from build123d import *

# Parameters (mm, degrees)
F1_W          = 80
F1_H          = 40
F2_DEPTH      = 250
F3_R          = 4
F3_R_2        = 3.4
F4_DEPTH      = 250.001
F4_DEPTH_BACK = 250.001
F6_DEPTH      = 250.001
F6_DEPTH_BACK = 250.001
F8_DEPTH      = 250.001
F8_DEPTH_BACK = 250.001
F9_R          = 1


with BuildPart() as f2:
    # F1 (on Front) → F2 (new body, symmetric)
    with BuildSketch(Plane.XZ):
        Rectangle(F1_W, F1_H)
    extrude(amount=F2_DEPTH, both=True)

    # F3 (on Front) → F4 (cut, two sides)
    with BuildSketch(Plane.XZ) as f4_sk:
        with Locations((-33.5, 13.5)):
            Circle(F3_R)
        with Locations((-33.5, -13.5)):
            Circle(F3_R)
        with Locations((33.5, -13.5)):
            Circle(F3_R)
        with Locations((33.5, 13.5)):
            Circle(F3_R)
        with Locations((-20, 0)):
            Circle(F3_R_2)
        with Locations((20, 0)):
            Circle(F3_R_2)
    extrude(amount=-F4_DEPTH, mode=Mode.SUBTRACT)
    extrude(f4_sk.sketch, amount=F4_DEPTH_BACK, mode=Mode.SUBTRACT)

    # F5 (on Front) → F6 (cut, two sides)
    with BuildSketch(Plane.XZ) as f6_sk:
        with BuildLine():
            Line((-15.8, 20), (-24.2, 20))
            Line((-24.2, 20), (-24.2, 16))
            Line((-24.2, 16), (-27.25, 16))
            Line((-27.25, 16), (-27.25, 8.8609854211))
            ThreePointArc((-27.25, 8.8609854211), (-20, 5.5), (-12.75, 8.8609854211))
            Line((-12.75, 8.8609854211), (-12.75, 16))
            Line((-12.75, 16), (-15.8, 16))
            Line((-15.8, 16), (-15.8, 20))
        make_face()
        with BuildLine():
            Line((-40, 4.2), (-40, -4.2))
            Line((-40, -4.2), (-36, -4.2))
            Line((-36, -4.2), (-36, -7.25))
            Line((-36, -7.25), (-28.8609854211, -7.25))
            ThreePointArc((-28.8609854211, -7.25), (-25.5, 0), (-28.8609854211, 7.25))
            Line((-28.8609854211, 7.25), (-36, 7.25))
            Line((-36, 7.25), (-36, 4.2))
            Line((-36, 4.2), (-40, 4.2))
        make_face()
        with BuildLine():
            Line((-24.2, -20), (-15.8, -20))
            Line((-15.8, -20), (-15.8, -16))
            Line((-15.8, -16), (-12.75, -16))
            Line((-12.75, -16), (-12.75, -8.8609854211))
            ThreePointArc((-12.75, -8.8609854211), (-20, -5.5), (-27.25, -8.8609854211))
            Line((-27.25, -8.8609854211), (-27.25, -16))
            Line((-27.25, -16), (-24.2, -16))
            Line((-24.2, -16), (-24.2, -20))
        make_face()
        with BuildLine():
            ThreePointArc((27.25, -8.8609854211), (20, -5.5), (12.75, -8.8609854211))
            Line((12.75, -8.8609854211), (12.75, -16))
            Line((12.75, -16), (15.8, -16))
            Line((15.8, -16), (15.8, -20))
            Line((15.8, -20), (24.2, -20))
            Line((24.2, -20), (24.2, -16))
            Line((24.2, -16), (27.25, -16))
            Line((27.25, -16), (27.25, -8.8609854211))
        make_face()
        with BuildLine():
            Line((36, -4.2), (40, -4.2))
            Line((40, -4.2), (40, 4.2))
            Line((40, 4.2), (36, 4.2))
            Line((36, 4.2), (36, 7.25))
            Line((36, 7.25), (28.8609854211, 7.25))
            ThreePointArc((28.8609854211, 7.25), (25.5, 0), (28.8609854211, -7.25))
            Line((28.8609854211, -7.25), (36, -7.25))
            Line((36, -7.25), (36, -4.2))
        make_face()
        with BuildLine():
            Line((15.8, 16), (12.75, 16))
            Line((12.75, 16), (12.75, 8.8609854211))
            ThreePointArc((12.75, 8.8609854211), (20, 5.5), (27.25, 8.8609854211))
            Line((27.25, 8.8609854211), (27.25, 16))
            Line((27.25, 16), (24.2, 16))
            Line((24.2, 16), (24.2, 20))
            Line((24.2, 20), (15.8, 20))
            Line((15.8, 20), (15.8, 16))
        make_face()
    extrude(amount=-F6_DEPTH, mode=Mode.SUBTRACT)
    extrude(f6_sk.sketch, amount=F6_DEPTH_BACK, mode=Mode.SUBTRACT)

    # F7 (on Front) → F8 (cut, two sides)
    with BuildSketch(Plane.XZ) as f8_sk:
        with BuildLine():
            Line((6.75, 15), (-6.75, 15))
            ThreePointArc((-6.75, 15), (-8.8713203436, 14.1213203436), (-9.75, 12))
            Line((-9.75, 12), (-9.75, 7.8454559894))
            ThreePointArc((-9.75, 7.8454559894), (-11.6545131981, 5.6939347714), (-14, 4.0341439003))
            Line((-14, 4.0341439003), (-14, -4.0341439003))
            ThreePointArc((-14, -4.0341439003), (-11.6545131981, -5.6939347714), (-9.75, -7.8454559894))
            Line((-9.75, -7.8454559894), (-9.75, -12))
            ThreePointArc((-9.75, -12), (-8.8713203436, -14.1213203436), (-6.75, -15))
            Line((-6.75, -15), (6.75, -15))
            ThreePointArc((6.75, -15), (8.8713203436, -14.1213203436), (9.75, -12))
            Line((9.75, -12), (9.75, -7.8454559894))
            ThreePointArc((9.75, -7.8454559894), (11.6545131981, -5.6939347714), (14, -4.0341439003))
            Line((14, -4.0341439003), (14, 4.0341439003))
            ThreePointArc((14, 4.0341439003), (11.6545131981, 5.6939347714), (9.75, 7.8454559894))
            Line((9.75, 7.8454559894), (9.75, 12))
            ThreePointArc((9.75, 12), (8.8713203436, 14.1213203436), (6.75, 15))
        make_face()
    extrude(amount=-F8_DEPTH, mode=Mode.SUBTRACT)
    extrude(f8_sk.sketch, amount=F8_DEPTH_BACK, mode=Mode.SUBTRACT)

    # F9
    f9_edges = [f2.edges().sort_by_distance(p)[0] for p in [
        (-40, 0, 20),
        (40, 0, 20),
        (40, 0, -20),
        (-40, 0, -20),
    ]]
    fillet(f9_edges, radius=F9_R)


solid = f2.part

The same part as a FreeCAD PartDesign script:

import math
import FreeCAD as App
import Part
import Sketcher
from FreeCAD import Vector
Q = App.Units.Quantity


def edges_at(feature, points):
    """Names of the edges that pass closest to the given points."""
    edges = feature.Shape.Edges
    near = lambda p: min(range(len(edges)), key=lambda i: edges[i].distToShape(Part.Vertex(*p))[0])
    return sorted({f"Edge{near(p) + 1}" for p in points})


def add_polygon(sketch, points):
    """Adds a closed chain of lines whose ends are joined by coincident constraints."""
    first, n = sketch.GeometryCount, len(points)
    for a, b in zip(points, points[1:] + points[:1]):
        sketch.addGeometry(Part.LineSegment(App.Vector(*a, 0), App.Vector(*b, 0)), False)
    for i in range(n):
        sketch.addConstraint(Sketcher.Constraint("Coincident", first + i, 2, first + (i + 1) % n, 1))

doc = App.newDocument("Part")
body = doc.addObject("PartDesign::Body", "Body")

sketch1 = doc.addObject("Sketcher::SketchObject", "Sketch")
body.addObject(sketch1)
sketch1.AttachmentSupport = (doc.XZ_Plane, [""])
sketch1.MapMode = "FlatFace"
add_polygon(sketch1, [(-40, 20), (-40, -20), (40, -20), (40, 20)])
sketch1.addConstraint([
    Sketcher.Constraint("Vertical", 0),
    Sketcher.Constraint("Horizontal", 1),
    Sketcher.Constraint("Vertical", 2),
    Sketcher.Constraint("Horizontal", 3),
    Sketcher.Constraint("Symmetric", 0, 2, 2, 2, -1, 1),
    Sketcher.Constraint("DistanceX", 1, 1, 1, 2, Q("80 mm")),
    Sketcher.Constraint("DistanceY", 0, 2, 0, 1, Q("40 mm")),
])
pad1 = doc.addObject("PartDesign::Pad", "Pad")
body.addObject(pad1)
pad1.Profile = sketch1
pad1.Length = 500
pad1.Midplane = True

sketch2 = doc.addObject("Sketcher::SketchObject", "Sketch001")
body.addObject(sketch2)
sketch2.AttachmentSupport = (doc.XZ_Plane, [""])
sketch2.MapMode = "FlatFace"
sketch2.addGeometry([
    Part.Circle(Vector(-33.5, 13.5, 0), Vector(0, 0, 1), 4),
    Part.Circle(Vector(-33.5, -13.5, 0), Vector(0, 0, 1), 4),
    Part.Circle(Vector(33.5, -13.5, 0), Vector(0, 0, 1), 4),
    Part.Circle(Vector(33.5, 13.5, 0), Vector(0, 0, 1), 4),
    Part.Circle(Vector(-20, 0, 0), Vector(0, 0, 1), 3.4),
    Part.Circle(Vector(20, 0, 0), Vector(0, 0, 1), 3.4),
], False)
sketch2.addConstraint([
    Sketcher.Constraint("Equal", 0, 1),
    Sketcher.Constraint("Equal", 1, 2),
    Sketcher.Constraint("Equal", 2, 3),
    Sketcher.Constraint("Equal", 4, 5),
    Sketcher.Constraint("Symmetric", 0, 3, 2, 3, -1, 1),
    Sketcher.Constraint("Symmetric", 1, 3, 3, 3, -1, 1),
    Sketcher.Constraint("Symmetric", 4, 3, 5, 3, -1, 1),
    Sketcher.Constraint("Symmetric", 1, 3, 2, 3, -2),
    Sketcher.Constraint("PointOnObject", 4, 3, -1),
    Sketcher.Constraint("Diameter", 0, Q("8 mm")),
    Sketcher.Constraint("Diameter", 4, Q("6.8 mm")),
    Sketcher.Constraint("DistanceX", 4, 3, -1, 1, Q("20 mm")),
    Sketcher.Constraint("DistanceY", 1, 3, 0, 3, Q("27 mm")),
    Sketcher.Constraint("DistanceX", 1, 3, 2, 3, Q("67 mm")),
])
pocket1 = doc.addObject("PartDesign::Pocket", "Pocket")
body.addObject(pocket1)
pocket1.Profile = sketch2
pocket1.Type = "ThroughAll"
pocket1.Midplane = True

sketch3 = doc.addObject("Sketcher::SketchObject", "Sketch002")
body.addObject(sketch3)
sketch3.AttachmentSupport = (doc.XZ_Plane, [""])
sketch3.MapMode = "FlatFace"
sketch3.addGeometry([
    Part.LineSegment(Vector(-15.8, 20, 0), Vector(-24.2, 20, 0)),
    Part.LineSegment(Vector(-24.2, 20, 0), Vector(-24.2, 16, 0)),
    Part.LineSegment(Vector(-24.2, 16, 0), Vector(-27.2, 16, 0)),
    Part.LineSegment(Vector(-27.2, 16, 0), Vector(-27.2, 8.9, 0)),
    Part.ArcOfCircle(Part.Circle(Vector(-20, 15, 0), Vector(0, 0, 1), 9.5), math.radians(-140), math.radians(-40)),
    Part.LineSegment(Vector(-12.8, 8.9, 0), Vector(-12.8, 16, 0)),
    Part.LineSegment(Vector(-12.8, 16, 0), Vector(-15.8, 16, 0)),
    Part.LineSegment(Vector(-15.8, 16, 0), Vector(-15.8, 20, 0)),
    Part.LineSegment(Vector(-40, 4.2, 0), Vector(-40, -4.2, 0)),
    Part.LineSegment(Vector(-40, -4.2, 0), Vector(-36, -4.2, 0)),
    Part.LineSegment(Vector(-36, -4.2, 0), Vector(-36, -7.2, 0)),
    Part.LineSegment(Vector(-36, -7.2, 0), Vector(-28.9, -7.2, 0)),
    Part.ArcOfCircle(Part.Circle(Vector(-35, 0, 0), Vector(0, 0, 1), 9.5), math.radians(-50), math.radians(50)),
    Part.LineSegment(Vector(-28.9, 7.2, 0), Vector(-36, 7.2, 0)),
    Part.LineSegment(Vector(-36, 7.2, 0), Vector(-36, 4.2, 0)),
    Part.LineSegment(Vector(-36, 4.2, 0), Vector(-40, 4.2, 0)),
    Part.LineSegment(Vector(-24.2, -20, 0), Vector(-15.8, -20, 0)),
    Part.LineSegment(Vector(-15.8, -20, 0), Vector(-15.8, -16, 0)),
    Part.LineSegment(Vector(-15.8, -16, 0), Vector(-12.8, -16, 0)),
    Part.LineSegment(Vector(-12.8, -16, 0), Vector(-12.8, -8.9, 0)),
    Part.ArcOfCircle(Part.Circle(Vector(-20, -15, 0), Vector(0, 0, 1), 9.5), math.radians(40), math.radians(140)),
    Part.LineSegment(Vector(-27.2, -8.9, 0), Vector(-27.2, -16, 0)),
    Part.LineSegment(Vector(-27.2, -16, 0), Vector(-24.2, -16, 0)),
    Part.LineSegment(Vector(-24.2, -16, 0), Vector(-24.2, -20, 0)),
    Part.ArcOfCircle(Part.Circle(Vector(20, -15, 0), Vector(0, 0, 1), 9.5), math.radians(40), math.radians(140)),
    Part.LineSegment(Vector(12.8, -8.9, 0), Vector(12.8, -16, 0)),
    Part.LineSegment(Vector(12.8, -16, 0), Vector(15.8, -16, 0)),
    Part.LineSegment(Vector(15.8, -16, 0), Vector(15.8, -20, 0)),
    Part.LineSegment(Vector(15.8, -20, 0), Vector(24.2, -20, 0)),
    Part.LineSegment(Vector(24.2, -20, 0), Vector(24.2, -16, 0)),
    Part.LineSegment(Vector(24.2, -16, 0), Vector(27.2, -16, 0)),
    Part.LineSegment(Vector(27.2, -16, 0), Vector(27.2, -8.9, 0)),
    Part.LineSegment(Vector(36, -4.2, 0), Vector(40, -4.2, 0)),
    Part.LineSegment(Vector(40, -4.2, 0), Vector(40, 4.2, 0)),
    Part.LineSegment(Vector(40, 4.2, 0), Vector(36, 4.2, 0)),
    Part.LineSegment(Vector(36, 4.2, 0), Vector(36, 7.2, 0)),
    Part.LineSegment(Vector(36, 7.2, 0), Vector(28.9, 7.2, 0)),
    Part.ArcOfCircle(Part.Circle(Vector(35, 0, 0), Vector(0, 0, 1), 9.5), math.radians(130), math.radians(230)),
    Part.LineSegment(Vector(28.9, -7.2, 0), Vector(36, -7.2, 0)),
    Part.LineSegment(Vector(36, -7.2, 0), Vector(36, -4.2, 0)),
    Part.LineSegment(Vector(15.8, 16, 0), Vector(12.8, 16, 0)),
    Part.LineSegment(Vector(12.8, 16, 0), Vector(12.8, 8.9, 0)),
    Part.ArcOfCircle(Part.Circle(Vector(20, 15, 0), Vector(0, 0, 1), 9.5), math.radians(-140), math.radians(-40)),
    Part.LineSegment(Vector(27.2, 8.9, 0), Vector(27.2, 16, 0)),
    Part.LineSegment(Vector(27.2, 16, 0), Vector(24.2, 16, 0)),
    Part.LineSegment(Vector(24.2, 16, 0), Vector(24.2, 20, 0)),
    Part.LineSegment(Vector(24.2, 20, 0), Vector(15.8, 20, 0)),
    Part.LineSegment(Vector(15.8, 20, 0), Vector(15.8, 16, 0)),
], False)
sketch3.addConstraint([
    Sketcher.Constraint("Coincident", 0, 2, 1, 1),
    Sketcher.Constraint("Coincident", 1, 2, 2, 1),
    Sketcher.Constraint("Coincident", 2, 2, 3, 1),
    Sketcher.Constraint("Coincident", 3, 2, 4, 1),
    Sketcher.Constraint("Coincident", 4, 2, 5, 1),
    Sketcher.Constraint("Coincident", 5, 2, 6, 1),
    Sketcher.Constraint("Coincident", 6, 2, 7, 1),
    Sketcher.Constraint("Coincident", 7, 2, 0, 1),
    Sketcher.Constraint("Coincident", 8, 2, 9, 1),
    Sketcher.Constraint("Coincident", 9, 2, 10, 1),
    Sketcher.Constraint("Coincident", 10, 2, 11, 1),
    Sketcher.Constraint("Coincident", 11, 2, 12, 1),
    Sketcher.Constraint("Coincident", 12, 2, 13, 1),
    Sketcher.Constraint("Coincident", 13, 2, 14, 1),
    Sketcher.Constraint("Coincident", 14, 2, 15, 1),
    Sketcher.Constraint("Coincident", 15, 2, 8, 1),
    Sketcher.Constraint("Coincident", 16, 2, 17, 1),
    Sketcher.Constraint("Coincident", 17, 2, 18, 1),
    Sketcher.Constraint("Coincident", 18, 2, 19, 1),
    Sketcher.Constraint("Coincident", 19, 2, 20, 1),
    Sketcher.Constraint("Coincident", 20, 2, 21, 1),
    Sketcher.Constraint("Coincident", 21, 2, 22, 1),
    Sketcher.Constraint("Coincident", 22, 2, 23, 1),
    Sketcher.Constraint("Coincident", 23, 2, 16, 1),
    Sketcher.Constraint("Coincident", 24, 2, 25, 1),
    Sketcher.Constraint("Coincident", 25, 2, 26, 1),
    Sketcher.Constraint("Coincident", 26, 2, 27, 1),
    Sketcher.Constraint("Coincident", 27, 2, 28, 1),
    Sketcher.Constraint("Coincident", 28, 2, 29, 1),
    Sketcher.Constraint("Coincident", 29, 2, 30, 1),
    Sketcher.Constraint("Coincident", 30, 2, 31, 1),
    Sketcher.Constraint("Coincident", 31, 2, 24, 1),
    Sketcher.Constraint("Coincident", 32, 2, 33, 1),
    Sketcher.Constraint("Coincident", 33, 2, 34, 1),
    Sketcher.Constraint("Coincident", 34, 2, 35, 1),
    Sketcher.Constraint("Coincident", 35, 2, 36, 1),
    Sketcher.Constraint("Coincident", 36, 2, 37, 1),
    Sketcher.Constraint("Coincident", 37, 2, 38, 1),
    Sketcher.Constraint("Coincident", 38, 2, 39, 1),
    Sketcher.Constraint("Coincident", 39, 2, 32, 1),
    Sketcher.Constraint("Coincident", 40, 2, 41, 1),
    Sketcher.Constraint("Coincident", 41, 2, 42, 1),
    Sketcher.Constraint("Coincident", 42, 2, 43, 1),
    Sketcher.Constraint("Coincident", 43, 2, 44, 1),
    Sketcher.Constraint("Coincident", 44, 2, 45, 1),
    Sketcher.Constraint("Coincident", 45, 2, 46, 1),
    Sketcher.Constraint("Coincident", 46, 2, 47, 1),
    Sketcher.Constraint("Coincident", 47, 2, 40, 1),
    Sketcher.Constraint("Horizontal", 0),
    Sketcher.Constraint("Vertical", 1),
    Sketcher.Constraint("Horizontal", 2),
    Sketcher.Constraint("Vertical", 3),
    Sketcher.Constraint("Vertical", 5),
    Sketcher.Constraint("Horizontal", 6),
    Sketcher.Constraint("Vertical", 7),
    Sketcher.Constraint("Vertical", 8),
    Sketcher.Constraint("Horizontal", 9),
    Sketcher.Constraint("Vertical", 10),
    Sketcher.Constraint("Horizontal", 11),
    Sketcher.Constraint("Horizontal", 13),
    Sketcher.Constraint("Vertical", 14),
    Sketcher.Constraint("Horizontal", 15),
    Sketcher.Constraint("Horizontal", 16),
    Sketcher.Constraint("Vertical", 17),
    Sketcher.Constraint("Horizontal", 18),
    Sketcher.Constraint("Vertical", 19),
    Sketcher.Constraint("Vertical", 21),
    Sketcher.Constraint("Horizontal", 22),
    Sketcher.Constraint("Vertical", 23),
    Sketcher.Constraint("Vertical", 25),
    Sketcher.Constraint("Horizontal", 26),
    Sketcher.Constraint("Vertical", 27),
    Sketcher.Constraint("Horizontal", 28),
    Sketcher.Constraint("Vertical", 29),
    Sketcher.Constraint("Horizontal", 30),
    Sketcher.Constraint("Vertical", 31),
    Sketcher.Constraint("Horizontal", 32),
    Sketcher.Constraint("Vertical", 33),
    Sketcher.Constraint("Horizontal", 34),
    Sketcher.Constraint("Vertical", 35),
    Sketcher.Constraint("Horizontal", 36),
    Sketcher.Constraint("Horizontal", 38),
    Sketcher.Constraint("Vertical", 39),
    Sketcher.Constraint("Horizontal", 40),
    Sketcher.Constraint("Vertical", 41),
    Sketcher.Constraint("Vertical", 43),
    Sketcher.Constraint("Horizontal", 44),
    Sketcher.Constraint("Vertical", 45),
    Sketcher.Constraint("Horizontal", 46),
    Sketcher.Constraint("Vertical", 47),
    Sketcher.Constraint("Equal", 4, 12),
    Sketcher.Constraint("Equal", 12, 20),
    Sketcher.Constraint("Equal", 20, 24),
    Sketcher.Constraint("Equal", 24, 37),
    Sketcher.Constraint("Equal", 37, 42),
    Sketcher.Constraint("Symmetric", 4, 3, 24, 3, -1, 1),
    Sketcher.Constraint("Symmetric", 12, 3, 37, 3, -1, 1),
    Sketcher.Constraint("Symmetric", 20, 3, 42, 3, -1, 1),
    Sketcher.Constraint("Symmetric", 5, 2, 25, 2, -1, 1),
    Sketcher.Constraint("Symmetric", 7, 2, 27, 2, -1, 1),
    Sketcher.Constraint("Symmetric", 1, 2, 29, 2, -1, 1),
    Sketcher.Constraint("Symmetric", 15, 2, 32, 2, -1, 1),
    Sketcher.Constraint("Symmetric", 9, 2, 34, 2, -1, 1),
    Sketcher.Constraint("Symmetric", 13, 2, 38, 2, -1, 1),
    Sketcher.Constraint("Symmetric", 18, 2, 40, 2, -1, 1),
    Sketcher.Constraint("Symmetric", 21, 2, 43, 2, -1, 1),
    Sketcher.Constraint("Symmetric", 23, 2, 45, 2, -1, 1),
    Sketcher.Constraint("Symmetric", 20, 3, 24, 3, -2),
    Sketcher.Constraint("Symmetric", 18, 2, 25, 2, -2),
    Sketcher.Constraint("Symmetric", 16, 2, 27, 2, -2),
    Sketcher.Constraint("Symmetric", 22, 2, 29, 2, -2),
    Sketcher.Constraint("Symmetric", 14, 2, 34, 2, -2),
    Sketcher.Constraint("Symmetric", 12, 2, 36, 2, -2),
    Sketcher.Constraint("Horizontal", 3, 2, 4, 2),
    Sketcher.Constraint("Horizontal", 2, 2, 5, 2),
    Sketcher.Constraint("Horizontal", 19, 2, 20, 2),
    Sketcher.Constraint("Horizontal", 24, 2, 31, 2),
    Sketcher.Constraint("Horizontal", 11, 2, 37, 2),
    Sketcher.Constraint("Vertical", 27, 2, 46, 2),
    Sketcher.Constraint("Equal", 2, 6),
    Sketcher.Constraint("Equal", 34, 1),
    Sketcher.Constraint("Equal", 38, 3),
    Sketcher.Constraint("Equal", 46, 8),
    Sketcher.Constraint("Equal", 44, 10),
    Sketcher.Constraint("Radius", 4, Q("9.5 mm")),
    Sketcher.Constraint("DistanceX", 9, 1, 9, 2, Q("4 mm")),
    Sketcher.Constraint("DistanceX", 0, 2, 0, 1, Q("8.4 mm")),
    Sketcher.Constraint("DistanceX", 4, 3, -1, 1, Q("20 mm")),
    Sketcher.Constraint("DistanceY", -1, 1, 4, 3, Q("15 mm")),
    Sketcher.Constraint("DistanceX", 12, 3, -1, 1, Q("35 mm")),
    Sketcher.Constraint("DistanceY", -1, 1, 0, 2, Q("20 mm")),
    Sketcher.Constraint("DistanceX", 2, 2, 2, 1, Q("3.05 mm")),
])
pocket2 = doc.addObject("PartDesign::Pocket", "Pocket001")
body.addObject(pocket2)
pocket2.Profile = sketch3
pocket2.Type = "ThroughAll"
pocket2.Midplane = True

sketch4 = doc.addObject("Sketcher::SketchObject", "Sketch003")
body.addObject(sketch4)
sketch4.AttachmentSupport = (doc.XZ_Plane, [""])
sketch4.MapMode = "FlatFace"
sketch4.addGeometry([
    Part.LineSegment(Vector(6.8, 15, 0), Vector(-6.8, 15, 0)),
    Part.ArcOfCircle(Part.Circle(Vector(-6.8, 12, 0), Vector(0, 0, 1), 3), math.radians(90), math.radians(180)),
    Part.LineSegment(Vector(-9.8, 12, 0), Vector(-9.8, 7.8, 0)),
    Part.ArcOfCircle(Part.Circle(Vector(-20, 15, 0), Vector(0, 0, 1), 12.5), math.radians(-61), math.radians(-35)),
    Part.LineSegment(Vector(-14, 4, 0), Vector(-14, -4, 0)),
    Part.ArcOfCircle(Part.Circle(Vector(-20, -15, 0), Vector(0, 0, 1), 12.5), math.radians(35), math.radians(61)),
    Part.LineSegment(Vector(-9.8, -7.8, 0), Vector(-9.8, -12, 0)),
    Part.ArcOfCircle(Part.Circle(Vector(-6.8, -12, 0), Vector(0, 0, 1), 3), math.radians(180), math.radians(270)),
    Part.LineSegment(Vector(-6.8, -15, 0), Vector(6.8, -15, 0)),
    Part.ArcOfCircle(Part.Circle(Vector(6.8, -12, 0), Vector(0, 0, 1), 3), math.radians(-90), math.radians(0)),
    Part.LineSegment(Vector(9.8, -12, 0), Vector(9.8, -7.8, 0)),
    Part.ArcOfCircle(Part.Circle(Vector(20, -15, 0), Vector(0, 0, 1), 12.5), math.radians(119), math.radians(145)),
    Part.LineSegment(Vector(14, -4, 0), Vector(14, 4, 0)),
    Part.ArcOfCircle(Part.Circle(Vector(20, 15, 0), Vector(0, 0, 1), 12.5), math.radians(-145), math.radians(-119)),
    Part.LineSegment(Vector(9.8, 7.8, 0), Vector(9.8, 12, 0)),
    Part.ArcOfCircle(Part.Circle(Vector(6.8, 12, 0), Vector(0, 0, 1), 3), math.radians(0), math.radians(90)),
], False)
sketch4.addConstraint([
    Sketcher.Constraint("Tangent", 0, 2, 1, 1),
    Sketcher.Constraint("Tangent", 1, 2, 2, 1),
    Sketcher.Constraint("Coincident", 2, 2, 3, 2),
    Sketcher.Constraint("Coincident", 3, 1, 4, 1),
    Sketcher.Constraint("Coincident", 4, 2, 5, 2),
    Sketcher.Constraint("Coincident", 5, 1, 6, 1),
    Sketcher.Constraint("Tangent", 6, 2, 7, 1),
    Sketcher.Constraint("Tangent", 7, 2, 8, 1),
    Sketcher.Constraint("Tangent", 8, 2, 9, 1),
    Sketcher.Constraint("Tangent", 9, 2, 10, 1),
    Sketcher.Constraint("Coincident", 10, 2, 11, 2),
    Sketcher.Constraint("Coincident", 11, 1, 12, 1),
    Sketcher.Constraint("Coincident", 12, 2, 13, 2),
    Sketcher.Constraint("Coincident", 13, 1, 14, 1),
    Sketcher.Constraint("Tangent", 14, 2, 15, 1),
    Sketcher.Constraint("Tangent", 15, 2, 0, 1),
    Sketcher.Constraint("Horizontal", 0),
    Sketcher.Constraint("Vertical", 2),
    Sketcher.Constraint("Vertical", 4),
    Sketcher.Constraint("Vertical", 6),
    Sketcher.Constraint("Horizontal", 8),
    Sketcher.Constraint("Vertical", 10),
    Sketcher.Constraint("Vertical", 12),
    Sketcher.Constraint("Vertical", 14),
    Sketcher.Constraint("Equal", 3, 5),
    Sketcher.Constraint("Equal", 1, 7),
    Sketcher.Constraint("Equal", 7, 9),
    Sketcher.Constraint("Equal", 5, 11),
    Sketcher.Constraint("Equal", 11, 13),
    Sketcher.Constraint("Equal", 9, 15),
    Sketcher.Constraint("Symmetric", 1, 3, 9, 3, -1, 1),
    Sketcher.Constraint("Symmetric", 3, 3, 11, 3, -1, 1),
    Sketcher.Constraint("Symmetric", 5, 3, 13, 3, -1, 1),
    Sketcher.Constraint("Symmetric", 5, 3, 11, 3, -2),
    Sketcher.Constraint("Horizontal", 13, 3, 0, 2),
    Sketcher.Constraint("Horizontal", 5, 1, 10, 2),
    Sketcher.Constraint("Horizontal", 4, 2, 11, 1),
    Sketcher.Constraint("Horizontal", 2, 2, 13, 1),
    Sketcher.Constraint("Radius", 1, Q("3 mm")),
    Sketcher.Constraint("Radius", 3, Q("12.5 mm")),
    Sketcher.Constraint("DistanceX", 0, 2, 0, 1, Q("13.5 mm")),
    Sketcher.Constraint("DistanceY", -1, 1, 1, 3, Q("12 mm")),
    Sketcher.Constraint("DistanceX", 3, 3, -1, 1, Q("20 mm")),
    Sketcher.Constraint("DistanceX", 3, 1, -1, 1, Q("14 mm")),
])
pocket3 = doc.addObject("PartDesign::Pocket", "Pocket002")
body.addObject(pocket3)
pocket3.Profile = sketch4
pocket3.Type = "ThroughAll"
pocket3.Midplane = True
doc.recompute()

fillet = doc.addObject("PartDesign::Fillet", "Fillet")
body.addObject(fillet)
fillet.Base = (pocket3, edges_at(pocket3, [
    (-40, 0, 20),
    (40, 0, 20),
    (40, 0, -20),
    (-40, 0, -20),
]))
fillet.Radius = 1

doc.recompute()
